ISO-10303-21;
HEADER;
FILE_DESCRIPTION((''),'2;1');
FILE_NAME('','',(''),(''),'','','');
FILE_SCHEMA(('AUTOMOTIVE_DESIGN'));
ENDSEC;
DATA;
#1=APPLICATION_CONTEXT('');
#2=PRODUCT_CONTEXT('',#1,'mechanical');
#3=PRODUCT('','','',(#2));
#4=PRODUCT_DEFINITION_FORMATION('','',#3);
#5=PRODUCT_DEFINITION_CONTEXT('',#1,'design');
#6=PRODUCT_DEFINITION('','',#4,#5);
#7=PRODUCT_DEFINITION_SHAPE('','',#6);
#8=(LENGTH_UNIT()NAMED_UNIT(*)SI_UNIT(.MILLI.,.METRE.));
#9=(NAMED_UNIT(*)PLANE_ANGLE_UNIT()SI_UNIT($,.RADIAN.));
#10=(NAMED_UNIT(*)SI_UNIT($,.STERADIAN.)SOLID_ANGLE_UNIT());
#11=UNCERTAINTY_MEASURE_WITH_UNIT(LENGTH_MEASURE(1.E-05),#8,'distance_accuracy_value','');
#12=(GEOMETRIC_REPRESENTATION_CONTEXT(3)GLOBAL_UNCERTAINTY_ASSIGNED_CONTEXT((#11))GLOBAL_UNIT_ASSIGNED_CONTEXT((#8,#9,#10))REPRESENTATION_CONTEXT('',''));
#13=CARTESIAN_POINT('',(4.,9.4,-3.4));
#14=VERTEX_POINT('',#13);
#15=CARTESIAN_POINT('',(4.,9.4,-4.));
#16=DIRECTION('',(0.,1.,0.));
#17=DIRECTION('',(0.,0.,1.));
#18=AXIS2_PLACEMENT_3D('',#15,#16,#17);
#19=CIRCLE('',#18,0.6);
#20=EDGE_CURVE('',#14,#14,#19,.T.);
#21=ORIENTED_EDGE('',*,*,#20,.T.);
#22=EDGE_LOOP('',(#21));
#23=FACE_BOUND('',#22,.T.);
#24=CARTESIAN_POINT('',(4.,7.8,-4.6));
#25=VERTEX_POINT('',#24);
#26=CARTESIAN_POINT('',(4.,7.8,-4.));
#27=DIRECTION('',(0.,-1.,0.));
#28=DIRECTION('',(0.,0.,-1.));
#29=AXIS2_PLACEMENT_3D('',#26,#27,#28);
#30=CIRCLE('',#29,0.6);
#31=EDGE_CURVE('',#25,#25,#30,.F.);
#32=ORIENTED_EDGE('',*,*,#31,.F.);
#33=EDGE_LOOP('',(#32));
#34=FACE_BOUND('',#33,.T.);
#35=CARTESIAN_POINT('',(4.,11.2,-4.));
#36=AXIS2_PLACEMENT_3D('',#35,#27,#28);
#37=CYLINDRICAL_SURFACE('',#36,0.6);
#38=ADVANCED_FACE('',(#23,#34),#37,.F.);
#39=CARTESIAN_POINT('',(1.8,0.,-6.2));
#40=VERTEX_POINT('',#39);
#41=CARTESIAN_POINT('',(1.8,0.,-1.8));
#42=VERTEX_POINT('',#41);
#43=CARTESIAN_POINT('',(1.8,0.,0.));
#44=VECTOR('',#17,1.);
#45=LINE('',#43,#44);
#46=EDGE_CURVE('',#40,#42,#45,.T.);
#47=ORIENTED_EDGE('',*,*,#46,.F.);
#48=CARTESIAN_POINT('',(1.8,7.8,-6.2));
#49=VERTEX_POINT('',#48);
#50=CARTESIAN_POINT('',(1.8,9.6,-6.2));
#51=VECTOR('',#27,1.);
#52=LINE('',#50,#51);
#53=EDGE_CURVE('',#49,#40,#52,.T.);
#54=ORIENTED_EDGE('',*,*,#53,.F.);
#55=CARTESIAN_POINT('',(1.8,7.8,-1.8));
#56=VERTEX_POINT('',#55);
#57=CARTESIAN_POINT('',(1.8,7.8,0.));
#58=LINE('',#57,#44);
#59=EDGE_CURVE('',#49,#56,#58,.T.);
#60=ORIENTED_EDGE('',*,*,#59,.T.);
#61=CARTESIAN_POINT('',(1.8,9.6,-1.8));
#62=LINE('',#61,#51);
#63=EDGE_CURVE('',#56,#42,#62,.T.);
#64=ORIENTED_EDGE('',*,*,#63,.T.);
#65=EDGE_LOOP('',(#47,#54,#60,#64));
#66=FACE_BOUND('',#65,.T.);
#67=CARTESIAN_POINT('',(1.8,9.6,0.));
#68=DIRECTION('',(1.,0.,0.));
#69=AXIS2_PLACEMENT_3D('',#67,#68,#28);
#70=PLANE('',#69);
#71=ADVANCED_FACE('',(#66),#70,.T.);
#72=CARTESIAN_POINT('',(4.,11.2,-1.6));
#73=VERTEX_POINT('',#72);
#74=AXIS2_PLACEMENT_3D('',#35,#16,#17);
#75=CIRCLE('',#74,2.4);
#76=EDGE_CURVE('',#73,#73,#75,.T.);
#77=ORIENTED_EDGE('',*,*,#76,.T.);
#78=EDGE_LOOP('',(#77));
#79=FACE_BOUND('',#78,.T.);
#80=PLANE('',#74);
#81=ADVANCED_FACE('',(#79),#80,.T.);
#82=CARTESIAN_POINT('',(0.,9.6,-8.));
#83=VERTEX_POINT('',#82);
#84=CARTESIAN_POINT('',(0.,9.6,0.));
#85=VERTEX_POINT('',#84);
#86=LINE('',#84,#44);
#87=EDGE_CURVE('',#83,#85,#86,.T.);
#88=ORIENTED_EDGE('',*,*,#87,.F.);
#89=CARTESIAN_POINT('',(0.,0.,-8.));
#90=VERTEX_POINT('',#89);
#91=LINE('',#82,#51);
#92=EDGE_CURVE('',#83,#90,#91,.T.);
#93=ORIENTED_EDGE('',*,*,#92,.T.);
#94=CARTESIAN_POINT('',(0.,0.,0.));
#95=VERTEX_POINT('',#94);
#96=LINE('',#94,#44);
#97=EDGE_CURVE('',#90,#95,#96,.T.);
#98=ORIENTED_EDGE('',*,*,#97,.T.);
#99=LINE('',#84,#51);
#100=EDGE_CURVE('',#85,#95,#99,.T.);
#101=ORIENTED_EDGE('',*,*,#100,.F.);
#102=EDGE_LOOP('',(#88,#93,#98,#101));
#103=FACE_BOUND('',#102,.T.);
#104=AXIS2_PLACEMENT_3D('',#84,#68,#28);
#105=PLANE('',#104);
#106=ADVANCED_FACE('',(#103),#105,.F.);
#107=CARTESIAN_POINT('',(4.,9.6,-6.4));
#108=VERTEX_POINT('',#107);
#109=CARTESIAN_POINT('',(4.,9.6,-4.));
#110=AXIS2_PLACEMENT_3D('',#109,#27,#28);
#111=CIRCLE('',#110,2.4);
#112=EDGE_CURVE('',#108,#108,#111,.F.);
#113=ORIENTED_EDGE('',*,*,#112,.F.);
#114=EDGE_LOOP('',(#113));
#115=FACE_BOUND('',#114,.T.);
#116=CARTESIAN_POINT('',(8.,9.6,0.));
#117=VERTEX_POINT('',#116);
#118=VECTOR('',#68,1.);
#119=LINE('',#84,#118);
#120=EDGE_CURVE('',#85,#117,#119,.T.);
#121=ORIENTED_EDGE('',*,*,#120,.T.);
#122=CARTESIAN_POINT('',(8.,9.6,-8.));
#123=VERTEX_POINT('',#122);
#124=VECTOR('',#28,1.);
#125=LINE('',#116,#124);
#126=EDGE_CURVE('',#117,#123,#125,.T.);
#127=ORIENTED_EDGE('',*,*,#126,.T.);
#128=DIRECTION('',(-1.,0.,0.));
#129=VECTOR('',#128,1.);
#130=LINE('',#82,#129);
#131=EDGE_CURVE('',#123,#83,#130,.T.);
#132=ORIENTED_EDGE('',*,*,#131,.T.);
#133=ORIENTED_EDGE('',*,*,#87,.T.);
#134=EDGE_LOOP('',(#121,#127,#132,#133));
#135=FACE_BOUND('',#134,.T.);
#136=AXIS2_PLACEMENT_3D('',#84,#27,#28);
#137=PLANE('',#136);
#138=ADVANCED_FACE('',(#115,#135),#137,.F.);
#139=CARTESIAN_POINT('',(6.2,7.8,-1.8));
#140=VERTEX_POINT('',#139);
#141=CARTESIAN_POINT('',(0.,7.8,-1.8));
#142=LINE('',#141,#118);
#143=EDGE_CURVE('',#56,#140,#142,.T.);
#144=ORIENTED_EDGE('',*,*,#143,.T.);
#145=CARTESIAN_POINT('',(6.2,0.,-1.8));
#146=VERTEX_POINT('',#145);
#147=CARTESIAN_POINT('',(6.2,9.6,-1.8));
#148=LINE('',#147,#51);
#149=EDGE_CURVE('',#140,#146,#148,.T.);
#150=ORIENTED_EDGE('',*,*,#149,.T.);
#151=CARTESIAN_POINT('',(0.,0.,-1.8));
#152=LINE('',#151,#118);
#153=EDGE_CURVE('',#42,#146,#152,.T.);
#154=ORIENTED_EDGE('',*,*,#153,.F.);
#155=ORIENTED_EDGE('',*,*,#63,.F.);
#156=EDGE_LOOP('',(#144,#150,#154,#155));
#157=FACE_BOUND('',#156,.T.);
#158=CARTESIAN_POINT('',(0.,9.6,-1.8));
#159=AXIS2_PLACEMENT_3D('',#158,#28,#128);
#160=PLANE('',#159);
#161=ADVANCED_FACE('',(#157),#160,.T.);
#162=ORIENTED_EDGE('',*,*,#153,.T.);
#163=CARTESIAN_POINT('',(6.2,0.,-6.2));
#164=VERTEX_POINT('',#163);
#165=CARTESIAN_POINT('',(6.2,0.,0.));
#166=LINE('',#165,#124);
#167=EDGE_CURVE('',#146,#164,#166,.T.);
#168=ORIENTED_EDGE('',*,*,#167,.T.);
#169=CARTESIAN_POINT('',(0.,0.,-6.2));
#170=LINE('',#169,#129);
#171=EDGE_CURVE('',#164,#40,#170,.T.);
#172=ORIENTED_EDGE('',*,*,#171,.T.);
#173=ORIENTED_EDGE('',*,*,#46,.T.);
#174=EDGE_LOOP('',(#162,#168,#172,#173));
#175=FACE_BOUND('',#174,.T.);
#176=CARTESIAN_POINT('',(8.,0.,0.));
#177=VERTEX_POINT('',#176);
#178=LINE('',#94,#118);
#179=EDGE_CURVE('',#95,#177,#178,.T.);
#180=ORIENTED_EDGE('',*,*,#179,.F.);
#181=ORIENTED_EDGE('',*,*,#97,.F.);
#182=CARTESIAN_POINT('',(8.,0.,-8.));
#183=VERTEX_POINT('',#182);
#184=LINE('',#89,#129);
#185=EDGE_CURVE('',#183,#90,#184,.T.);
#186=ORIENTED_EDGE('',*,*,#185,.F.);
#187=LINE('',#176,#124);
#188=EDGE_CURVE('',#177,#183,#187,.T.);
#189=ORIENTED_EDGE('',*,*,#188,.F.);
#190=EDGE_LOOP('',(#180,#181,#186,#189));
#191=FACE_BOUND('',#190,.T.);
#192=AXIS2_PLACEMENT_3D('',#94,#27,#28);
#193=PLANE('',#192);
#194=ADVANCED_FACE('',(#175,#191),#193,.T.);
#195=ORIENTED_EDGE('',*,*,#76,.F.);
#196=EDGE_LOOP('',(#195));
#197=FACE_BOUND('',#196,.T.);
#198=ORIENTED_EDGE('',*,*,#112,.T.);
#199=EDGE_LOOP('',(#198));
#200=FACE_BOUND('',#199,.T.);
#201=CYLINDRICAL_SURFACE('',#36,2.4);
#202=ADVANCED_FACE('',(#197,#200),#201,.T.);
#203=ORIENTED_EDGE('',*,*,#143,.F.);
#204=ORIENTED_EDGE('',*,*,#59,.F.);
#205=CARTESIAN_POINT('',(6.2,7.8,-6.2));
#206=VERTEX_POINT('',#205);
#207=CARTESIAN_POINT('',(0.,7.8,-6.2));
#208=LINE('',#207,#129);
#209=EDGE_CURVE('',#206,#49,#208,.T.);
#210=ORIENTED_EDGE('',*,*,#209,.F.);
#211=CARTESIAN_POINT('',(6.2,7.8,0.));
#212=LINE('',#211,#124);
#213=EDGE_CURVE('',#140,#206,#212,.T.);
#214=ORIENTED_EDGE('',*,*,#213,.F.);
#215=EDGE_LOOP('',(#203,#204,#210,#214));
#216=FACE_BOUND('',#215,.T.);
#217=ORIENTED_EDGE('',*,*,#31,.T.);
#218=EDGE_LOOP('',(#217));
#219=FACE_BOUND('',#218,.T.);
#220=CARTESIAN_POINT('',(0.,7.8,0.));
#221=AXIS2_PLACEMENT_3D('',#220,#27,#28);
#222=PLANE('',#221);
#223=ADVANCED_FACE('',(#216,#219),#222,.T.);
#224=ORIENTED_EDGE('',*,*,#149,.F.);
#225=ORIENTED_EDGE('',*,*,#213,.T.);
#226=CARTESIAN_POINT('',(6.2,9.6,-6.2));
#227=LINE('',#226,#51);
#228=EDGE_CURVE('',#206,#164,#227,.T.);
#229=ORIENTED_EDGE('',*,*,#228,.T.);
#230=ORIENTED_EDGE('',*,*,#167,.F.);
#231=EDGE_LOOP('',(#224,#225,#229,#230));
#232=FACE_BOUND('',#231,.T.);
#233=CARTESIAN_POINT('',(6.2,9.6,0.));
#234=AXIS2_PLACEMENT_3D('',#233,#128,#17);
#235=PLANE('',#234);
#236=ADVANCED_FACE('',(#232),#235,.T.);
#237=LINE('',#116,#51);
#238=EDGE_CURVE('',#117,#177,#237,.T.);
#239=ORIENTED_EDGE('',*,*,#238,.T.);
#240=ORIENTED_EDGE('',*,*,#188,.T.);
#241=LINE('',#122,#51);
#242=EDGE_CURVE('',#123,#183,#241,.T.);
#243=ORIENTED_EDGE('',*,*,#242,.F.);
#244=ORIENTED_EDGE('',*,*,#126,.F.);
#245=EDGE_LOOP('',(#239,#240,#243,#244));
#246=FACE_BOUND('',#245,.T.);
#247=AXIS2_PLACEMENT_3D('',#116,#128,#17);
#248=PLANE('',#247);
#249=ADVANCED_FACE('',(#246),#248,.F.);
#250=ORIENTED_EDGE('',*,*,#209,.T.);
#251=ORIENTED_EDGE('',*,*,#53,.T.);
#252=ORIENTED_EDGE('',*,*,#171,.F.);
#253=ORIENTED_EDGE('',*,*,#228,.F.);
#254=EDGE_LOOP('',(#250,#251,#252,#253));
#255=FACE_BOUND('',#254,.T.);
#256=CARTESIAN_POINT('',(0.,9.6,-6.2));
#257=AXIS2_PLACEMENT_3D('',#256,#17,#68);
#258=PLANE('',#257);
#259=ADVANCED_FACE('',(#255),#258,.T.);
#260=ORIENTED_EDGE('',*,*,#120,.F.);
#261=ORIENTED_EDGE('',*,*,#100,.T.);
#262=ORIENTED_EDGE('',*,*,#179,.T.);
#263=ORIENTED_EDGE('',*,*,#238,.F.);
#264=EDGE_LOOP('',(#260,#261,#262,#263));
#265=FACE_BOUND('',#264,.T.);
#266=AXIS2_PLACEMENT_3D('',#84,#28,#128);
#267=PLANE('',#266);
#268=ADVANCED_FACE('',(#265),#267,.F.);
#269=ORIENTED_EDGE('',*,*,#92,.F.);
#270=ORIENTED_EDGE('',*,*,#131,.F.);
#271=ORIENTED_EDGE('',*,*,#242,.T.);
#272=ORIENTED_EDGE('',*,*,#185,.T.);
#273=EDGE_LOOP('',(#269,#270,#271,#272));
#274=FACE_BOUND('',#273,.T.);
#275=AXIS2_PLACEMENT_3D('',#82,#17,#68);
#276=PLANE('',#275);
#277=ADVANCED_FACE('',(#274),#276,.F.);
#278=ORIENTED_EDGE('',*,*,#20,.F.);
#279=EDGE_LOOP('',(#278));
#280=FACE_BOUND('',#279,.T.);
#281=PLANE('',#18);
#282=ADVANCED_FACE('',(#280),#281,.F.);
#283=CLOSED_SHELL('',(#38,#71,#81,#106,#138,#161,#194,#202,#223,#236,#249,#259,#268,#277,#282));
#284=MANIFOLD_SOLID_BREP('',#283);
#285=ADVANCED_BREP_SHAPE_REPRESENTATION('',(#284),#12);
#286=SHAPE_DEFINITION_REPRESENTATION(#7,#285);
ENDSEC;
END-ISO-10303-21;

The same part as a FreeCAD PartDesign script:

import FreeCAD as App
import Part
import Sketcher

V = App.Vector
Q = App.Units.Quantity


def faces_at(feature, points):
    """Names of the faces that lie closest to the given points."""
    faces = feature.Shape.Faces
    near = lambda p: min(range(len(faces)), key=lambda i: faces[i].distToShape(Part.Vertex(*p))[0])
    return sorted({f"Face{near(p) + 1}" for p in points})


def add_polygon(sketch, points):
    """Adds a closed chain of lines whose ends are joined by coincident constraints."""
    first, n = sketch.GeometryCount, len(points)
    for a, b in zip(points, points[1:] + points[:1]):
        sketch.addGeometry(Part.LineSegment(App.Vector(*a, 0), App.Vector(*b, 0)), False)
    for i in range(n):
        sketch.addConstraint(Sketcher.Constraint("Coincident", first + i, 2, first + (i + 1) % n, 1))

doc = App.newDocument("Part")
params = doc.addObject("Spreadsheet::Sheet", "Params")
for row, (alias, value) in enumerate([
    ("sketch1_width", "8 mm"),
    ("pad1_length", "9.6 mm"),
    ("sketch2_diameter", "4.8 mm"),
    ("pad2_length", "1.6 mm"),
    ("thickness_wall", "1.8 mm"),
], start=1):
    params.set(f"A{row}", alias)
    params.set(f"B{row}", "=" + value)
    params.setAlias(f"B{row}", alias)

body = doc.addObject("PartDesign::Body", "Body")

# Sketch on XZ plane
sketch1 = body.newObject("Sketcher::SketchObject", "Sketch")
sketch1.AttachmentSupport = (doc.getObject("XZ_Plane"), [""])
sketch1.MapMode = "FlatFace"
add_polygon(sketch1, [(0, -8), (0, 0), (8, 0), (8, -8)])  # lines 0-3
sketch1.addConstraint([
    Sketcher.Constraint("Vertical", 0),
    Sketcher.Constraint("Horizontal", 1),
    Sketcher.Constraint("Vertical", 2),
    Sketcher.Constraint("Horizontal", 3),
    Sketcher.Constraint("Coincident", 0, 2, -1, 1),
    Sketcher.Constraint("Equal", 3, 0),
    Sketcher.Constraint("DistanceX", 1, 1, 1, 2, Q("8 mm")),
])
sketch1.setExpression("Constraints[10]", "Params.sketch1_width")
pad1 = body.newObject("PartDesign::Pad", "Pad")
pad1.Profile = sketch1
pad1.setExpression("Length", "Params.pad1_length")
pad1.Reversed = True

# Sketch on XZ plane
sketch2 = body.newObject("Sketcher::SketchObject", "Sketch001")
sketch2.AttachmentSupport = (doc.getObject("XZ_Plane"), [""])
sketch2.MapMode = "FlatFace"
sketch2.AttachmentOffset = App.Placement(V(0, 0, -9.6), App.Rotation())
sketch2.addGeometry(Part.Circle(V(4, -4, 0), V(0, 0, 1), 2.4), False)
sketch2.addConstraint([
    Sketcher.Constraint("Diameter", 0, Q("4.8 mm")),
    Sketcher.Constraint("DistanceX", -1, 1, 0, 3, Q("4 mm")),
    Sketcher.Constraint("DistanceY", 0, 3, -1, 1, Q("4 mm")),
])
sketch2.setExpression("Constraints[0]", "Params.sketch2_diameter")
pad2 = body.newObject("PartDesign::Pad", "Pad001")
pad2.Profile = sketch2
pad2.setExpression("Length", "Params.pad2_length")
pad2.Reversed = True
doc.recompute()

thickness = body.newObject("PartDesign::Thickness", "Thickness")
thickness.Base = (pad2, faces_at(pad2, [(4, 0, -4)]))
thickness.setExpression("Value", "Params.thickness_wall")
thickness.Reversed = True
thickness.Join = "Intersection"

doc.recompute()
